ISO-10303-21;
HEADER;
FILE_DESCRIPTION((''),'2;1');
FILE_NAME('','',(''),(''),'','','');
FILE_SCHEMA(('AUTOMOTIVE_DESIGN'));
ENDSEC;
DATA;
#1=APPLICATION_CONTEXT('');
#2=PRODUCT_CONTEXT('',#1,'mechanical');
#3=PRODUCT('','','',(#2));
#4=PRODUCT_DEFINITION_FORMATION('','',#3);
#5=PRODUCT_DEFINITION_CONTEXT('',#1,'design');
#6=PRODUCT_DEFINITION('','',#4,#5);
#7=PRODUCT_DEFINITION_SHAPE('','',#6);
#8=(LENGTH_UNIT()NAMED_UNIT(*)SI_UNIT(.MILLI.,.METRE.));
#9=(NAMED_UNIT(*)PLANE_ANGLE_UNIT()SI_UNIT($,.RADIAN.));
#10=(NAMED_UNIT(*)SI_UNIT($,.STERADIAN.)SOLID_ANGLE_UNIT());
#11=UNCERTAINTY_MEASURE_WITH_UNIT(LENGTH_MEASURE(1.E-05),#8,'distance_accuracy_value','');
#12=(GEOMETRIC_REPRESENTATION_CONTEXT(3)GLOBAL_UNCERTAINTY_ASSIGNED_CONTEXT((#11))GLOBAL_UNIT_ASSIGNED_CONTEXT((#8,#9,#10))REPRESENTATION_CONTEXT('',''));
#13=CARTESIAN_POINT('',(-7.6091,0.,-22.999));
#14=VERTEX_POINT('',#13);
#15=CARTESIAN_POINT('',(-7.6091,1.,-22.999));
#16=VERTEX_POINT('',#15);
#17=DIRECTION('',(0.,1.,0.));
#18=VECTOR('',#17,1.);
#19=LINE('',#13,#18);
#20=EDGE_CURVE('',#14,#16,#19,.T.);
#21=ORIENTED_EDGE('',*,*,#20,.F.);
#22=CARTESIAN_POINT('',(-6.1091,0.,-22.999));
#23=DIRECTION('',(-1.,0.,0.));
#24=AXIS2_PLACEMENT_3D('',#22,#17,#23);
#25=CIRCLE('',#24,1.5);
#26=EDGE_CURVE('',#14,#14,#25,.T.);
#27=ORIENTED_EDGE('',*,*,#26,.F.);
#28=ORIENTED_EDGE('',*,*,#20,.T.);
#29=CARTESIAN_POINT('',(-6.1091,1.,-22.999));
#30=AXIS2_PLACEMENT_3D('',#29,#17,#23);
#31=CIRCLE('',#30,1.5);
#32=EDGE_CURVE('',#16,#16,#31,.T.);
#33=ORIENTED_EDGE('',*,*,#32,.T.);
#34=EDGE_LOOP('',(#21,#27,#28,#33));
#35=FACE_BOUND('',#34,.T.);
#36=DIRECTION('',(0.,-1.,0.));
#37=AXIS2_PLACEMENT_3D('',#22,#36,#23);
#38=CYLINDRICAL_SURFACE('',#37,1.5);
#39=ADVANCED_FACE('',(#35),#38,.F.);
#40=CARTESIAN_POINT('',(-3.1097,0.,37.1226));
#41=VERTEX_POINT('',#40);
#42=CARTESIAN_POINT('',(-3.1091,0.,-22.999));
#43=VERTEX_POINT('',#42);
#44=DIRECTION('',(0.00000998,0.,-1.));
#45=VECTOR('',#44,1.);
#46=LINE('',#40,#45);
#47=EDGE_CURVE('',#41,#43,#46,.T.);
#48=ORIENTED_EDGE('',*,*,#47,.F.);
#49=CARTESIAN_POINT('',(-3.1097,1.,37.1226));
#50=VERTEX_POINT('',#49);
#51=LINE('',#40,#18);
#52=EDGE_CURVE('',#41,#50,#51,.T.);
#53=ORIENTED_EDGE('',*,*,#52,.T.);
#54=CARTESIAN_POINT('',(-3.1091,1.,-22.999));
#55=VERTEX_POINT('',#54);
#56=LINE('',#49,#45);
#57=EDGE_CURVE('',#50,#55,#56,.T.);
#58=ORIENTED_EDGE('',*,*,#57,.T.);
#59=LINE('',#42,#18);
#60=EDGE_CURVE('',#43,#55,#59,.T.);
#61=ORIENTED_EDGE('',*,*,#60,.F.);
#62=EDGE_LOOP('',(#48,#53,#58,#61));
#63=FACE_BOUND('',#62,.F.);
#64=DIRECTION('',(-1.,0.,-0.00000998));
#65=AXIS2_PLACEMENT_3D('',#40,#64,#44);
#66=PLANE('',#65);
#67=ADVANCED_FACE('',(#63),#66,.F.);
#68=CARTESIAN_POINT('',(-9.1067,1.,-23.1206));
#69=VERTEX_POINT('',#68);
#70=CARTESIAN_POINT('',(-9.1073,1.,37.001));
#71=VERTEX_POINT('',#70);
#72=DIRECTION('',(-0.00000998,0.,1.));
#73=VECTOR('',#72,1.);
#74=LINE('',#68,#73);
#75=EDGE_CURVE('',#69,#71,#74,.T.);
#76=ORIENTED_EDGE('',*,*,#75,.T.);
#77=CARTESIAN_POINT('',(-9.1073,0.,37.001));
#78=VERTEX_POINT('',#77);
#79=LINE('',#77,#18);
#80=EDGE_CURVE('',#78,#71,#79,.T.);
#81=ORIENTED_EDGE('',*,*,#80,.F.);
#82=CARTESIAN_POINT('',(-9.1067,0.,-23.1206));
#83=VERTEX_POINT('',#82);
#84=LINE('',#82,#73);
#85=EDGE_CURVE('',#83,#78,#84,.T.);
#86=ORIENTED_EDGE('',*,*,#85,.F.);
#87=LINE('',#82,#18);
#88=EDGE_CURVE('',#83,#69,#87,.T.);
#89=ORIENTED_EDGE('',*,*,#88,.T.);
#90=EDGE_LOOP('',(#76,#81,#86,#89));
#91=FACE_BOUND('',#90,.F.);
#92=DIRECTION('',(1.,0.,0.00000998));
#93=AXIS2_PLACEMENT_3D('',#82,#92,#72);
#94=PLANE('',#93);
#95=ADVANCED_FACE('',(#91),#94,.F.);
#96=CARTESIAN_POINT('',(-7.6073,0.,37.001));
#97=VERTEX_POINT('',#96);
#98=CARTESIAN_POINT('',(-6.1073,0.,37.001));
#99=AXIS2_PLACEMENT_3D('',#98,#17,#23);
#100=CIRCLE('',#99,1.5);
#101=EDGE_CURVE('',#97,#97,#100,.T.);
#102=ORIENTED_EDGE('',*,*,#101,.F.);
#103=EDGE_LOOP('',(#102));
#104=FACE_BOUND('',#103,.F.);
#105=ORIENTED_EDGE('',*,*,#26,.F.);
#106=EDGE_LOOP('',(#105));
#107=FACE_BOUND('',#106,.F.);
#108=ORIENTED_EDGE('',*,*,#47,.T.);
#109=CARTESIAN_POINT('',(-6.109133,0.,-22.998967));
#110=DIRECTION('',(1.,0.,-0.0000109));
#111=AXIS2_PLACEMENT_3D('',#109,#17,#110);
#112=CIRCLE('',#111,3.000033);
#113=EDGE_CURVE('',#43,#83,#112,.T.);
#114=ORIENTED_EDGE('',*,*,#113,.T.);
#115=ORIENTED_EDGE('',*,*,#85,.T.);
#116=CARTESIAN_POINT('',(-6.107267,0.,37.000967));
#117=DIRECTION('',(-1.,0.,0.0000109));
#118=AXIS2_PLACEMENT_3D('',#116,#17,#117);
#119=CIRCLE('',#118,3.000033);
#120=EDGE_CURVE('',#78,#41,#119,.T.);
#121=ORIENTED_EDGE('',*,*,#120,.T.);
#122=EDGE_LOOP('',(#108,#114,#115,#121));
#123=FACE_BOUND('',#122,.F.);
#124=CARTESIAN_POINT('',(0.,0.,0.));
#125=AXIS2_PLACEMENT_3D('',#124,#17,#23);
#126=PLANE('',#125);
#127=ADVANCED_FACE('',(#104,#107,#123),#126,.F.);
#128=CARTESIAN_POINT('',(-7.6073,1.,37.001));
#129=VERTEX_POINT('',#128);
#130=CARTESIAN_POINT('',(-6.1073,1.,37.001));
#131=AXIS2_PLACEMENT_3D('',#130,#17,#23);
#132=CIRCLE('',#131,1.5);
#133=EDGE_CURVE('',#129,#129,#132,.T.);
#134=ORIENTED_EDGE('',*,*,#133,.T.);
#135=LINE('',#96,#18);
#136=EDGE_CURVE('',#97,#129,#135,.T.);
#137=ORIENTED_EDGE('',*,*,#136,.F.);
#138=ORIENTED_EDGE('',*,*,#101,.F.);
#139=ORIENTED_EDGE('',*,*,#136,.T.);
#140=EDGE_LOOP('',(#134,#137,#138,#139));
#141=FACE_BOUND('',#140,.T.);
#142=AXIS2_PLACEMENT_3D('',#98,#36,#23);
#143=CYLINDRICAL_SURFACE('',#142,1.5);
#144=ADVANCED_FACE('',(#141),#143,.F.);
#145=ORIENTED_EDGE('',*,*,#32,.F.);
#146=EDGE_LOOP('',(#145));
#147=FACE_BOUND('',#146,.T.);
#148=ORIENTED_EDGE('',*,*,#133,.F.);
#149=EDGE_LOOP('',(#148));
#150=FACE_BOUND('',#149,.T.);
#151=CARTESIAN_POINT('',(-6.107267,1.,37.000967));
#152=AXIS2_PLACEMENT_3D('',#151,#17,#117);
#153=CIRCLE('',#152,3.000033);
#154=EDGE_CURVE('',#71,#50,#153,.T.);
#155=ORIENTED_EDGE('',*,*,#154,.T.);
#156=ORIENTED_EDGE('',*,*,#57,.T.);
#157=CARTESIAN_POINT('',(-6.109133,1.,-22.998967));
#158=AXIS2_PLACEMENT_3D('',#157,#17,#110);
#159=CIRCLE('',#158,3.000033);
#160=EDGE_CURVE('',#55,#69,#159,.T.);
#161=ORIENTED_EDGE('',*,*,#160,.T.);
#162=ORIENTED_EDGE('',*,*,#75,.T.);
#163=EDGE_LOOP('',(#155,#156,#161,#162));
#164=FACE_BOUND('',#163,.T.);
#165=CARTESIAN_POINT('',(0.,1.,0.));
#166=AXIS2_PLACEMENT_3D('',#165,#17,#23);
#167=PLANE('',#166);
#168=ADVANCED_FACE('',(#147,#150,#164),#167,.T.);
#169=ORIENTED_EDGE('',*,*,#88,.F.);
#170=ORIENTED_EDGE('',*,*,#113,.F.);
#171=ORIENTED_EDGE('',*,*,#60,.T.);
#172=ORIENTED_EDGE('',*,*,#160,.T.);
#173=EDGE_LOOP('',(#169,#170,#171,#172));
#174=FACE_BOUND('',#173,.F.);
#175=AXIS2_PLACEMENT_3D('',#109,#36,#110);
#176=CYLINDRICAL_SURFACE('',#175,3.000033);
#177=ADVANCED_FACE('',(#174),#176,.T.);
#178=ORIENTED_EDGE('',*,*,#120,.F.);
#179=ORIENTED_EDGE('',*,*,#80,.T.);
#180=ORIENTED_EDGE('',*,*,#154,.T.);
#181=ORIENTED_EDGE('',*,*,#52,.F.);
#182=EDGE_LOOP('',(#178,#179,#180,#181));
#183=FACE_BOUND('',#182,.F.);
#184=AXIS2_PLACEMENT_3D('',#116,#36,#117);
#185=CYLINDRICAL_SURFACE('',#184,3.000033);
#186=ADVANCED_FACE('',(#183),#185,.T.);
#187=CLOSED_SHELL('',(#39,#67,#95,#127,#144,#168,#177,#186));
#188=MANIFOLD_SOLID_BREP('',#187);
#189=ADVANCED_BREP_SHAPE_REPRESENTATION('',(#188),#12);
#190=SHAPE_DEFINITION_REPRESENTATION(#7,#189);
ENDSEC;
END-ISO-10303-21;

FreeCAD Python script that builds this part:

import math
import FreeCAD as App
import Part
import Sketcher

V = App.Vector

doc = App.newDocument("Part")
body = doc.addObject("PartDesign::Body", "Body")

sketch1 = body.newObject("Sketcher::SketchObject", "Sketch")
sketch1.AttachmentSupport = (doc.getObject("XZ_Plane"), [""])
sketch1.MapMode = "FlatFace"
sketch1.addGeometry([
    Part.ArcOfCircle(Part.Circle(V(-6.1073, 37.001, 0), V(0, 0, 1), 3), math.radians(2.322975), math.radians(180)),
    Part.LineSegment(V(-3.1097, 37.1226, 0), V(-3.1091, -22.999, 0)),
    Part.ArcOfCircle(Part.Circle(V(-6.1091, -22.999, 0), V(0, 0, 1), 3), math.radians(-177.677025), math.radians(0)),
    Part.LineSegment(V(-9.1067, -23.1206, 0), V(-9.1073, 37.001, 0)),
    Part.Circle(V(-6.1091, -22.999, 0), V(0, 0, 1), 1.5),
    Part.Circle(V(-6.1073, 37.001, 0), V(0, 0, 1), 1.5),
], False)
sketch1.addConstraint([
    Sketcher.Constraint("Coincident", 0, 1, 1, 1),
    Sketcher.Constraint("Tangent", 1, 2, 2, 2),
    Sketcher.Constraint("Coincident", 2, 1, 3, 1),
    Sketcher.Constraint("Tangent", 3, 2, 0, 2),
    Sketcher.Constraint("Coincident", 4, 3, 2, 3),
    Sketcher.Constraint("Coincident", 5, 3, 0, 3),
    Sketcher.Constraint("Equal", 0, 2),
    Sketcher.Constraint("Equal", 4, 5),
    Sketcher.Constraint("Parallel", 1, 3),
    Sketcher.Constraint("Horizontal", 4, 3, 1, 2),
    Sketcher.Constraint("Diameter", 4, 3.0),
    Sketcher.Constraint("Radius", 0, 3.0),
    Sketcher.Constraint("DistanceY", 2, 3, 0, 3, 60.0),
    Sketcher.Constraint("DistanceY", -1, 1, 0, 3, 37.001),
    Sketcher.Constraint("DistanceX", 2, 3, -1, 1, 6.109),
    Sketcher.Constraint("Distance", 1, 60.1216),
])
pad1 = body.newObject("PartDesign::Pad", "Pad")
pad1.Profile = sketch1
pad1.Length = 1
pad1.Reversed = True

doc.recompute()
